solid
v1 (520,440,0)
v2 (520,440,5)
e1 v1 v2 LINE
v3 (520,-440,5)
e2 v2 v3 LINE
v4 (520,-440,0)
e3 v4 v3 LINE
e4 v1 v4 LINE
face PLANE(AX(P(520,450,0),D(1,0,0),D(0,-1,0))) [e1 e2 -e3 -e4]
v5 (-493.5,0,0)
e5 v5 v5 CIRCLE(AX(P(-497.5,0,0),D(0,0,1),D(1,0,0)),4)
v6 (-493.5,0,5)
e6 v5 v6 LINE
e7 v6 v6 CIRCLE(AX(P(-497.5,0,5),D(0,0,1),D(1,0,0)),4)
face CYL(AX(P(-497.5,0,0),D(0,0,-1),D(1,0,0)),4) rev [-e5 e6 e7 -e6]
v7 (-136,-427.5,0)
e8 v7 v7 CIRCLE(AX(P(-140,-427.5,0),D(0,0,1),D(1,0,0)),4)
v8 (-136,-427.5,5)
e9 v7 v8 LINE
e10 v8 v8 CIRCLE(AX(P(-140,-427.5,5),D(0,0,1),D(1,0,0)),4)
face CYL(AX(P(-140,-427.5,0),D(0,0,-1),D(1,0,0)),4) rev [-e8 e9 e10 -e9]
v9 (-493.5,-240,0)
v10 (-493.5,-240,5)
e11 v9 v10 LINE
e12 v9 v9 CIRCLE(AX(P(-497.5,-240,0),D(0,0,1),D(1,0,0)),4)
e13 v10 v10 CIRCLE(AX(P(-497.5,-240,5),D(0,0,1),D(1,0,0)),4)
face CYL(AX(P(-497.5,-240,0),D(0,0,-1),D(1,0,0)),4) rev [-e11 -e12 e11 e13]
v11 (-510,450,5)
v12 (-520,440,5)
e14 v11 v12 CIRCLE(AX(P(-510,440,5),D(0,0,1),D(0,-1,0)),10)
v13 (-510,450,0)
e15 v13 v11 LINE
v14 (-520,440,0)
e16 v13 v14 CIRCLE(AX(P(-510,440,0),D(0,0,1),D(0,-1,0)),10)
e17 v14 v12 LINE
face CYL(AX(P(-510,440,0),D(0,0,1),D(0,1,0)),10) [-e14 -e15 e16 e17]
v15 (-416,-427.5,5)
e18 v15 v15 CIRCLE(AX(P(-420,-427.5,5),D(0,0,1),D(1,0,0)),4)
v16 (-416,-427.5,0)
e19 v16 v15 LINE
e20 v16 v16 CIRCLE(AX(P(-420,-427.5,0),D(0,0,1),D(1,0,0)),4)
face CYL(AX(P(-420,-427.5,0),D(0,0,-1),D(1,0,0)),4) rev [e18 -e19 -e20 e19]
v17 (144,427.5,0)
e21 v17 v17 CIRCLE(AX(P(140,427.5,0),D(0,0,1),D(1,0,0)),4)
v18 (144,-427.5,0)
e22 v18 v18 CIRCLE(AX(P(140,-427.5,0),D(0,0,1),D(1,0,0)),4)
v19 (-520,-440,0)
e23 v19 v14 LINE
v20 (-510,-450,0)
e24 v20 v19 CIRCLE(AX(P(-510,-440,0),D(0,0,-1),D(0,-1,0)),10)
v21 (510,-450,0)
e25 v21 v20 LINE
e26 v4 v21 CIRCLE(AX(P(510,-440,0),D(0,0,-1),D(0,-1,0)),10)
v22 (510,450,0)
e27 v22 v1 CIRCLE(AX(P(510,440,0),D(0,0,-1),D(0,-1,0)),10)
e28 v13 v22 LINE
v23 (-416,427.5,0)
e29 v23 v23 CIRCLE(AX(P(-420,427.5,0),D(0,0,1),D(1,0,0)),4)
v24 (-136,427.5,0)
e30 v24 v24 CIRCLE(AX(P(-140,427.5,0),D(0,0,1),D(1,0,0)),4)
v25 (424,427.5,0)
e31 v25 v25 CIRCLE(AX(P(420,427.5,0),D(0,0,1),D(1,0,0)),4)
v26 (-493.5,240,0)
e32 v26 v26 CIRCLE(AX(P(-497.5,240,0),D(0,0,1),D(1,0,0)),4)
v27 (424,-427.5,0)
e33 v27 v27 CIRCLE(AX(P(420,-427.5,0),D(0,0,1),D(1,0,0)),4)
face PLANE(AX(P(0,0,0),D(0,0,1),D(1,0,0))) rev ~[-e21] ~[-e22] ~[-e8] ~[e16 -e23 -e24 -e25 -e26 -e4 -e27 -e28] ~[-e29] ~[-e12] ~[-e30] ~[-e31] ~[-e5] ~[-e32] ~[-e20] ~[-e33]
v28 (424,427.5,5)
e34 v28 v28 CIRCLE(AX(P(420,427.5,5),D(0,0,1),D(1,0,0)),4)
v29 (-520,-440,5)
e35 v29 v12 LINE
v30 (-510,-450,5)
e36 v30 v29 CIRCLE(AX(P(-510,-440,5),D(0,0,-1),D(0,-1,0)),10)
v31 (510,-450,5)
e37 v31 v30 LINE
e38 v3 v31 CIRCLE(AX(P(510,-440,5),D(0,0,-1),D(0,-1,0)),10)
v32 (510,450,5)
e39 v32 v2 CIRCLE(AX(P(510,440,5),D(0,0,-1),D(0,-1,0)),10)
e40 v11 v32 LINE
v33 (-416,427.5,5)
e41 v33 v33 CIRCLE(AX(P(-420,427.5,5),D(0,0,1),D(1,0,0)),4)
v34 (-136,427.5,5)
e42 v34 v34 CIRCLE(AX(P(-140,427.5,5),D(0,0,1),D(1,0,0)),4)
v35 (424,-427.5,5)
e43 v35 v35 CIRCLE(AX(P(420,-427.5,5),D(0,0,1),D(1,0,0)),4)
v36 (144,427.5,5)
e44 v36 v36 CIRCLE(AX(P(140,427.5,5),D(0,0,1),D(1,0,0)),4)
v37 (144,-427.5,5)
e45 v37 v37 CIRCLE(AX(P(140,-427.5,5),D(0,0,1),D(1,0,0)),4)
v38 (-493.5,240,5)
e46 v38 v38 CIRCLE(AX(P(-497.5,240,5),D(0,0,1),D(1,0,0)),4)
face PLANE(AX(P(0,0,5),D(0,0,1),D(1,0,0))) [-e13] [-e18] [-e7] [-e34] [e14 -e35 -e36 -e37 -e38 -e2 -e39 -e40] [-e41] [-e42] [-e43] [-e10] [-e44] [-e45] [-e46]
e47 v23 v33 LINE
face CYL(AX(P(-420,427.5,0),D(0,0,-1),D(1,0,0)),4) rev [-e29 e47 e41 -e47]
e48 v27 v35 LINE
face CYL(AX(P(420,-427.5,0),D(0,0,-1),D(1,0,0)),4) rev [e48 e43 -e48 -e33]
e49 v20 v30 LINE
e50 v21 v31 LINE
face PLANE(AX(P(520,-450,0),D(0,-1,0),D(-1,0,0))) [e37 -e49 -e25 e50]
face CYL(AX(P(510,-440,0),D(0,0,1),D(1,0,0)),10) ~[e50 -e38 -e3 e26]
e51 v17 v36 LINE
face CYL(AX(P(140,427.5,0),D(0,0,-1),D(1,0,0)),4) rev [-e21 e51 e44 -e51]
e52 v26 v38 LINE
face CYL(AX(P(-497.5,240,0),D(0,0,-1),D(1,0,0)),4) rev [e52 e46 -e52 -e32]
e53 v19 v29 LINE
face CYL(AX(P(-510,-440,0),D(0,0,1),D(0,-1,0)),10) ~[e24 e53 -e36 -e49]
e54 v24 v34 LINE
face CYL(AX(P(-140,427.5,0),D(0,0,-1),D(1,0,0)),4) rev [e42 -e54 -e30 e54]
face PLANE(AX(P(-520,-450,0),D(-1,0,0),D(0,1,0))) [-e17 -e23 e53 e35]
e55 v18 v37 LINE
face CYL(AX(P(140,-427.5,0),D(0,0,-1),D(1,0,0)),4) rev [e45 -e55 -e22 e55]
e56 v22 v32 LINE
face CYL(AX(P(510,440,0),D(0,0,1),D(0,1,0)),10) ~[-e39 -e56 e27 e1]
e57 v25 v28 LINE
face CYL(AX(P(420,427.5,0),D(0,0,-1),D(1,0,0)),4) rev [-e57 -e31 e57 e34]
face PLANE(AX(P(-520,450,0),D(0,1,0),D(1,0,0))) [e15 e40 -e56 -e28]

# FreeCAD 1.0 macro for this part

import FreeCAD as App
import Part
import Sketcher

V = App.Vector


def edges_at(feature, points):
    """Names of the edges that pass closest to the given points."""
    edges = feature.Shape.Edges
    near = lambda p: min(range(len(edges)), key=lambda i: edges[i].distToShape(Part.Vertex(*p))[0])
    return sorted({f"Edge{near(p) + 1}" for p in points})

doc = App.newDocument("Part")
body = doc.addObject("PartDesign::Body", "Body")

sketch1 = doc.addObject("Sketcher::SketchObject", "Sketch")
body.addObject(sketch1)
sketch1.AttachmentSupport = (doc.XY_Plane, [""])
sketch1.MapMode = "FlatFace"
sketch1.addGeometry([
    Part.LineSegment(V(520, 450, 0), V(-520, 450, 0)),
    Part.LineSegment(V(-520, 450, 0), V(-520, -450, 0)),
    Part.LineSegment(V(-520, -450, 0), V(520, -450, 0)),
    Part.LineSegment(V(520, -450, 0), V(520, 450, 0)),
    Part.Circle(V(-420, -427.5, 0), V(0, 0, 1), 4),
    Part.Circle(V(-497.5, -240, 0), V(0, 0, 1), 4),
    Part.Circle(V(-140, -427.5, 0), V(0, 0, 1), 4),
    Part.Circle(V(140, -427.5, 0), V(0, 0, 1), 4),
    Part.Circle(V(420, -427.5, 0), V(0, 0, 1), 4),
    Part.Circle(V(-497.5, 0, 0), V(0, 0, 1), 4),
    Part.Circle(V(-497.5, 240, 0), V(0, 0, 1), 4),
    Part.Circle(V(-420, 427.5, 0), V(0, 0, 1), 4),
    Part.Circle(V(-140, 427.5, 0), V(0, 0, 1), 4),
    Part.Circle(V(140, 427.5, 0), V(0, 0, 1), 4),
    Part.Circle(V(420, 427.5, 0), V(0, 0, 1), 4),
], False)
sketch1.addConstraint([
    Sketcher.Constraint("Coincident", 0, 2, 1, 1),
    Sketcher.Constraint("Coincident", 1, 2, 2, 1),
    Sketcher.Constraint("Coincident", 2, 2, 3, 1),
    Sketcher.Constraint("Coincident", 3, 2, 0, 1),
    Sketcher.Constraint("Horizontal", 0),
    Sketcher.Constraint("Vertical", 1),
    Sketcher.Constraint("Horizontal", 2),
    Sketcher.Constraint("Vertical", 3),
    Sketcher.Constraint("Equal", 4, 5),
    Sketcher.Constraint("Equal", 5, 6),
    Sketcher.Constraint("Equal", 6, 7),
    Sketcher.Constraint("Equal", 7, 8),
    Sketcher.Constraint("Equal", 8, 9),
    Sketcher.Constraint("Equal", 9, 10),
    Sketcher.Constraint("Equal", 10, 11),
    Sketcher.Constraint("Equal", 11, 12),
    Sketcher.Constraint("Equal", 12, 13),
    Sketcher.Constraint("Equal", 13, 14),
    Sketcher.Constraint("Symmetric", 8, 3, 11, 3, -1, 1),
    Sketcher.Constraint("Symmetric", 7, 3, 12, 3, -1, 1),
    Sketcher.Constraint("Symmetric", 6, 3, 13, 3, -1, 1),
    Sketcher.Constraint("Symmetric", 4, 3, 14, 3, -1, 1),
    Sketcher.Constraint("Symmetric", 0, 2, 2, 2, -1, 1),
    Sketcher.Constraint("Symmetric", 6, 3, 7, 3, -2),
    Sketcher.Constraint("Symmetric", 4, 3, 8, 3, -2),
    Sketcher.Constraint("Symmetric", 5, 3, 10, 3, -1),
    Sketcher.Constraint("PointOnObject", 9, 3, -1),
    Sketcher.Constraint("Horizontal", 4, 3, 6, 3),
    Sketcher.Constraint("Vertical", 5, 3, 9, 3),
    Sketcher.Constraint("Diameter", 4, 8.0),
    Sketcher.Constraint("DistanceX", 0, 2, 0, 1, 1040.0),
    Sketcher.Constraint("DistanceY", 1, 2, 1, 1, 900.0),
    Sketcher.Constraint("DistanceY", 5, 3, -1, 1, 240.0),
    Sketcher.Constraint("DistanceX", 4, 3, 6, 3, 280.0),
    Sketcher.Constraint("DistanceX", 6, 3, 7, 3, 280.0),
    Sketcher.Constraint("DistanceY", 11, 3, 0, 2, 22.5),
    Sketcher.Constraint("DistanceX", 0, 2, 10, 3, 22.5),
])
pad1 = doc.addObject("PartDesign::Pad", "Pad")
body.addObject(pad1)
pad1.Profile = sketch1
pad1.Length = 5
doc.recompute()

fillet = doc.addObject("PartDesign::Fillet", "Fillet")
body.addObject(fillet)
fillet.Base = (pad1, edges_at(pad1, [
    (520, 450, 2.5),
    (-520, 450, 2.5),
    (520, -450, 2.5),
    (-520, -450, 2.5),
]))
fillet.Radius = 10

doc.recompute()
